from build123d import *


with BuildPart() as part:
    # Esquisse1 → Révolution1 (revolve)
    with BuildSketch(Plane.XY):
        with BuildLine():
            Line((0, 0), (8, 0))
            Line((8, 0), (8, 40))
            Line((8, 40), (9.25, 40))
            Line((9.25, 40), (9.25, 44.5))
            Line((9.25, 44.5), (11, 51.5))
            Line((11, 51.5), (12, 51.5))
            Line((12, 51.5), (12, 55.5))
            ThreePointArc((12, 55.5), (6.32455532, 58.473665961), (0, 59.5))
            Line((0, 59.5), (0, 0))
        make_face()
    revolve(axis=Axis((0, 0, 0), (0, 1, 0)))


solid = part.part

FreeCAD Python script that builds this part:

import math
import FreeCAD as App
import Part
import Sketcher

doc = App.newDocument("Part")
body = doc.addObject("PartDesign::Body", "Body")

# Sketch on XY plane
sketch1 = doc.addObject("Sketcher::SketchObject", "Sketch")
body.addObject(sketch1)
sketch1.AttachmentSupport = (doc.XY_Plane, [""])
sketch1.MapMode = "FlatFace"
sketch1.addGeometry(Part.LineSegment(App.Vector(0, 0, 0), App.Vector(8, 0, 0)), False)
sketch1.addGeometry(Part.LineSegment(App.Vector(8, 0, 0), App.Vector(8, 40, 0)), False)
sketch1.addGeometry(Part.LineSegment(App.Vector(8, 40, 0), App.Vector(9.2, 40, 0)), False)
sketch1.addGeometry(Part.LineSegment(App.Vector(9.2, 40, 0), App.Vector(9.2, 44.5, 0)), False)
sketch1.addGeometry(Part.LineSegment(App.Vector(9.2, 44.5, 0), App.Vector(11, 51.5, 0)), False)
sketch1.addGeometry(Part.LineSegment(App.Vector(11, 51.5, 0), App.Vector(12, 51.5, 0)), False)
sketch1.addGeometry(Part.LineSegment(App.Vector(12, 51.5, 0), App.Vector(12, 55.5, 0)), False)
sketch1.addGeometry(Part.ArcOfCircle(Part.Circle(App.Vector(0, 39.5, 0), App.Vector(0, 0, 1), 20), math.radians(53), math.radians(90)), False)
sketch1.addGeometry(Part.LineSegment(App.Vector(0, 59.5, 0), App.Vector(0, 0, 0)), False)
sketch1.addConstraint(Sketcher.Constraint("Coincident", 0, 2, 1, 1))
sketch1.addConstraint(Sketcher.Constraint("Coincident", 1, 2, 2, 1))
sketch1.addConstraint(Sketcher.Constraint("Coincident", 2, 2, 3, 1))
sketch1.addConstraint(Sketcher.Constraint("Coincident", 3, 2, 4, 1))
sketch1.addConstraint(Sketcher.Constraint("Coincident", 4, 2, 5, 1))
sketch1.addConstraint(Sketcher.Constraint("Coincident", 5, 2, 6, 1))
sketch1.addConstraint(Sketcher.Constraint("Coincident", 6, 2, 7, 1))
sketch1.addConstraint(Sketcher.Constraint("Coincident", 7, 2, 8, 1))
sketch1.addConstraint(Sketcher.Constraint("Coincident", 8, 2, 0, 1))
sketch1.addConstraint(Sketcher.Constraint("Horizontal", 0))
sketch1.addConstraint(Sketcher.Constraint("Vertical", 1))
sketch1.addConstraint(Sketcher.Constraint("Horizontal", 2))
sketch1.addConstraint(Sketcher.Constraint("Vertical", 3))
sketch1.addConstraint(Sketcher.Constraint("Horizontal", 5))
sketch1.addConstraint(Sketcher.Constraint("Vertical", 6))
sketch1.addConstraint(Sketcher.Constraint("Vertical", 8))
sketch1.addConstraint(Sketcher.Constraint("Coincident", 8, 2, -1, 1))
sketch1.addConstraint(Sketcher.Constraint("PointOnObject", 7, 3, -2))
sketch1.addConstraint(Sketcher.Constraint("Radius", 7, 20.0))
sketch1.addConstraint(Sketcher.Constraint("DistanceX", 0, 1, 0, 2, 8.0))
sketch1.addConstraint(Sketcher.Constraint("DistanceX", 5, 1, 5, 2, 1.0))
sketch1.addConstraint(Sketcher.Constraint("DistanceY", 1, 1, 1, 2, 40.0))
sketch1.addConstraint(Sketcher.Constraint("DistanceY", 6, 1, 6, 2, 4.0))
sketch1.addConstraint(Sketcher.Constraint("DistanceY", 3, 1, 3, 2, 4.5))
sketch1.addConstraint(Sketcher.Constraint("DistanceY", 8, 2, 8, 1, 59.5))
sketch1.addConstraint(Sketcher.Constraint("DistanceX", -1, 1, 4, 2, 11.0))
sketch1.addConstraint(Sketcher.Constraint("DistanceX", 2, 1, 2, 2, 1.25))
revolution = doc.addObject("PartDesign::Revolution", "Revolution")
body.addObject(revolution)
revolution.Profile = sketch1
revolution.ReferenceAxis = (sketch1, ["V_Axis"])
revolution.Angle = 360

doc.recompute()
